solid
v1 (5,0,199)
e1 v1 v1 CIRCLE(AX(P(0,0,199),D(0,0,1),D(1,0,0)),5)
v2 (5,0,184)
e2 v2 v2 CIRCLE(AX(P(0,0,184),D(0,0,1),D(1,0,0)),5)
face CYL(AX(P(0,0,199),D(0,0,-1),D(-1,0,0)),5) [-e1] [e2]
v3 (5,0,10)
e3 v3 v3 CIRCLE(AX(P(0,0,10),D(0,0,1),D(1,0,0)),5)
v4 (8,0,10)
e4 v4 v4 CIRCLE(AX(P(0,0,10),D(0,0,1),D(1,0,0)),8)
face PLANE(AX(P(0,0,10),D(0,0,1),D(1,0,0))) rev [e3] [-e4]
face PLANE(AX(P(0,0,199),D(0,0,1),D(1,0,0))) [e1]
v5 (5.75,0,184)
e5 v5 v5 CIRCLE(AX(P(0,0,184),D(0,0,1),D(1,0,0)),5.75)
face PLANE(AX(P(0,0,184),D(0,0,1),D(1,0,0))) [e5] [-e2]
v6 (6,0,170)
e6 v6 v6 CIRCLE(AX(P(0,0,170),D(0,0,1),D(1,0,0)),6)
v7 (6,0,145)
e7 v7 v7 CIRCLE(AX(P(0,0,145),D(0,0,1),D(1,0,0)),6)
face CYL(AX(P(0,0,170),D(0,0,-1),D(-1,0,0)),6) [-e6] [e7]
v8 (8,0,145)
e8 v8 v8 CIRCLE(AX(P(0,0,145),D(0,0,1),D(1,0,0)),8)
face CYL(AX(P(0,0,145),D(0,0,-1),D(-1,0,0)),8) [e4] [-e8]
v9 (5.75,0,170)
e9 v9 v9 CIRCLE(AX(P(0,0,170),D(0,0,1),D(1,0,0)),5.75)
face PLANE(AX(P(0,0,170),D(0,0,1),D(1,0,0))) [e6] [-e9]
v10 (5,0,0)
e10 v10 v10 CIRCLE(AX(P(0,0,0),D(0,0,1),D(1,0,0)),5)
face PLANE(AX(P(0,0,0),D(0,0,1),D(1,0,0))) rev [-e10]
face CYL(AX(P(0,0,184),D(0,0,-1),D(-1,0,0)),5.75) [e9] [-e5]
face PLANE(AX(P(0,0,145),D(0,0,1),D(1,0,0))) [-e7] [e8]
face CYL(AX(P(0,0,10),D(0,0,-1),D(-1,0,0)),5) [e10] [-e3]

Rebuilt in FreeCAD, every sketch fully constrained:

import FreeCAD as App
import Part
import Sketcher

V = App.Vector

doc = App.newDocument("Part")
body = doc.addObject("PartDesign::Body", "Body")

sketch1 = doc.addObject("Sketcher::SketchObject", "Sketch")
body.addObject(sketch1)
sketch1.AttachmentSupport = (doc.XY_Plane, [""])
sketch1.MapMode = "FlatFace"
sketch1.addGeometry(Part.Circle(V(0, 0, 0), V(0, 0, 1), 5), False)
sketch1.addConstraint(Sketcher.Constraint("Coincident", 0, 3, -1, 1))
sketch1.addConstraint(Sketcher.Constraint("Diameter", 0, 10.0))
pad1 = doc.addObject("PartDesign::Pad", "Pad")
body.addObject(pad1)
pad1.Profile = sketch1
pad1.Length = 10

sketch2 = doc.addObject("Sketcher::SketchObject", "Sketch001")
body.addObject(sketch2)
sketch2.AttachmentSupport = (doc.XY_Plane, [""])
sketch2.MapMode = "FlatFace"
sketch2.AttachmentOffset = App.Placement(V(0, 0, 10), App.Rotation())
sketch2.addGeometry(Part.Circle(V(0, 0, 0), V(0, 0, 1), 8), False)
sketch2.addConstraint(Sketcher.Constraint("Coincident", 0, 3, -1, 1))
sketch2.addConstraint(Sketcher.Constraint("Diameter", 0, 16.0))
pad2 = doc.addObject("PartDesign::Pad", "Pad001")
body.addObject(pad2)
pad2.Profile = sketch2
pad2.Length = 135

sketch3 = doc.addObject("Sketcher::SketchObject", "Sketch002")
body.addObject(sketch3)
sketch3.AttachmentSupport = (doc.XY_Plane, [""])
sketch3.MapMode = "FlatFace"
sketch3.AttachmentOffset = App.Placement(V(0, 0, 145), App.Rotation())
sketch3.addGeometry(Part.Circle(V(0, 0, 0), V(0, 0, 1), 6), False)
sketch3.addConstraint(Sketcher.Constraint("Coincident", 0, 3, -1, 1))
sketch3.addConstraint(Sketcher.Constraint("Diameter", 0, 12.0))
pad3 = doc.addObject("PartDesign::Pad", "Pad002")
body.addObject(pad3)
pad3.Profile = sketch3
pad3.Length = 25

sketch4 = doc.addObject("Sketcher::SketchObject", "Sketch003")
body.addObject(sketch4)
sketch4.AttachmentSupport = (doc.XY_Plane, [""])
sketch4.MapMode = "FlatFace"
sketch4.AttachmentOffset = App.Placement(V(0, 0, 170), App.Rotation())
sketch4.addGeometry(Part.Circle(V(0, 0, 0), V(0, 0, 1), 6), False)
sketch4.addConstraint(Sketcher.Constraint("Coincident", 0, 3, -1, 1))
sketch4.addConstraint(Sketcher.Constraint("Diameter", 0, 11.5))
pad4 = doc.addObject("PartDesign::Pad", "Pad003")
body.addObject(pad4)
pad4.Profile = sketch4
pad4.Length = 14

sketch5 = doc.addObject("Sketcher::SketchObject", "Sketch004")
body.addObject(sketch5)
sketch5.AttachmentSupport = (doc.XY_Plane, [""])
sketch5.MapMode = "FlatFace"
sketch5.AttachmentOffset = App.Placement(V(0, 0, 184), App.Rotation())
sketch5.addGeometry(Part.Circle(V(0, 0, 0), V(0, 0, 1), 5), False)
sketch5.addConstraint(Sketcher.Constraint("Coincident", 0, 3, -1, 1))
sketch5.addConstraint(Sketcher.Constraint("Diameter", 0, 10.0))
pad5 = doc.addObject("PartDesign::Pad", "Pad004")
body.addObject(pad5)
pad5.Profile = sketch5
pad5.Length = 15

doc.recompute()
